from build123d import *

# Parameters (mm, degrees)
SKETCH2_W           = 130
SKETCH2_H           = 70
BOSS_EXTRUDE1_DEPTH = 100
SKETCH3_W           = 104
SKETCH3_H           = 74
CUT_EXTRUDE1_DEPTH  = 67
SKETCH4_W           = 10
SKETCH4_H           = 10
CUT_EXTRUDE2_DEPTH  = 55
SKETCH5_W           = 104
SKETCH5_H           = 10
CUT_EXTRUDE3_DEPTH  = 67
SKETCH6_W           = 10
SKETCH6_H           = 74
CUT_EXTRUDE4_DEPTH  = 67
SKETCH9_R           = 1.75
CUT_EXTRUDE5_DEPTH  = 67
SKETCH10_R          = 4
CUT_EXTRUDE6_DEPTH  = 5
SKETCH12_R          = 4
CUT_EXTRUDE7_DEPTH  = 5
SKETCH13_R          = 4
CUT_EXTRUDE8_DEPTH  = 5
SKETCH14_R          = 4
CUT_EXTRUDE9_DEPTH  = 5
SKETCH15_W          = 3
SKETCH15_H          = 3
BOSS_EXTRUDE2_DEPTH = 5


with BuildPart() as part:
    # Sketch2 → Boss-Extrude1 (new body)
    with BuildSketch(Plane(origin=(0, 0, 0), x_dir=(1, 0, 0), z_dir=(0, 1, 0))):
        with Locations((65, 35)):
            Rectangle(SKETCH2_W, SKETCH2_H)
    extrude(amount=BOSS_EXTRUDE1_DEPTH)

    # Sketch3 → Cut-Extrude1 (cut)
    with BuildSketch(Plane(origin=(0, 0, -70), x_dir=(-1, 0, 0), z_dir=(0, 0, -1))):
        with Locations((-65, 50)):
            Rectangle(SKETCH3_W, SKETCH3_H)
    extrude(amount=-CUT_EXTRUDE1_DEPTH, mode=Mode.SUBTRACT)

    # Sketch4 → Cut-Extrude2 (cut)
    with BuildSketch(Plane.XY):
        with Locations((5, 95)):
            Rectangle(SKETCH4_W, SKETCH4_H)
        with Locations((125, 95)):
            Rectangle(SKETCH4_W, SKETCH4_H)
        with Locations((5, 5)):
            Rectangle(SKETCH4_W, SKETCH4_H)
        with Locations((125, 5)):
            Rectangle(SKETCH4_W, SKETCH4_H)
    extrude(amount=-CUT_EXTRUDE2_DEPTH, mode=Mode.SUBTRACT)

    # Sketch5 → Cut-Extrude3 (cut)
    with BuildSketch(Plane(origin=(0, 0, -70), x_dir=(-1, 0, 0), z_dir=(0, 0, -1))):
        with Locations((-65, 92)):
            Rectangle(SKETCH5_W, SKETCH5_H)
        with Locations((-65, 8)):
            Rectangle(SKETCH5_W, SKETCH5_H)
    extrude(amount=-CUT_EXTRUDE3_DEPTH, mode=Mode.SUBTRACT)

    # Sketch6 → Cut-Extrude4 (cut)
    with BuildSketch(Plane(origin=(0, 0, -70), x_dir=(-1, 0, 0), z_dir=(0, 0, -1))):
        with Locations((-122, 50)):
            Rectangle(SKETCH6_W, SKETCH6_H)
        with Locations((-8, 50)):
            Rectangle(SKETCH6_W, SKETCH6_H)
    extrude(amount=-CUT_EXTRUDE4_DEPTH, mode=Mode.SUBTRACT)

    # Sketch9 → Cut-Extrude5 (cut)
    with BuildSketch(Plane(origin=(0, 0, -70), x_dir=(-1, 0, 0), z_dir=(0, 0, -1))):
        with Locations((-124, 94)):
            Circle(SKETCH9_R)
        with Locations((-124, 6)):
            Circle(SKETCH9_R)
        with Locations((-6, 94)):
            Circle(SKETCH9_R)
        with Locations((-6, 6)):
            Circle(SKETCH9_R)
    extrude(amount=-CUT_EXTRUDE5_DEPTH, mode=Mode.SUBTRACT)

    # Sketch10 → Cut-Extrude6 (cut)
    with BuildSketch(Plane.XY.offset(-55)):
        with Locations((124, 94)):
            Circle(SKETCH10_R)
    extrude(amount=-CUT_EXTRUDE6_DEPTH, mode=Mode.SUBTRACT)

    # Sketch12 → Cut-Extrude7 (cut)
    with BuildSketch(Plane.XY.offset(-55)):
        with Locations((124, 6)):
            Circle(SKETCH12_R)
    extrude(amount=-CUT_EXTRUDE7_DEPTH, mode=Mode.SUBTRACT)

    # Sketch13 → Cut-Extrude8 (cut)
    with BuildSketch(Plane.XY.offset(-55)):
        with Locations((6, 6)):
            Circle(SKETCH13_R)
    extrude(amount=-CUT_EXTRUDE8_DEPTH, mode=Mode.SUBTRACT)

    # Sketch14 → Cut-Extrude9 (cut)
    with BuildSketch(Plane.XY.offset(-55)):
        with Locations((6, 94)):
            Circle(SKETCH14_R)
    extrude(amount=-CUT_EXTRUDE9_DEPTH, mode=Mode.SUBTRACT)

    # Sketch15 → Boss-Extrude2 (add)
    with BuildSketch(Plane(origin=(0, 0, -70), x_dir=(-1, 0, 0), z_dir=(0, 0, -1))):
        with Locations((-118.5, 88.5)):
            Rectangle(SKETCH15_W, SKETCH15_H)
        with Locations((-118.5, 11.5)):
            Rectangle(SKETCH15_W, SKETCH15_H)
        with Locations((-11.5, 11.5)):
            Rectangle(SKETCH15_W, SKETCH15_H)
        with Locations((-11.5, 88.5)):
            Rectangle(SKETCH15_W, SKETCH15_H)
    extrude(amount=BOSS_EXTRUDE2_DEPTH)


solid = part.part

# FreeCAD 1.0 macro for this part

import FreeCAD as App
import Part
import Sketcher

V = App.Vector
Q = App.Units.Quantity

doc = App.newDocument("Part")
body = doc.addObject("PartDesign::Body", "Body")

sketch1 = doc.addObject("Sketcher::SketchObject", "Sketch")
body.addObject(sketch1)
sketch1.AttachmentSupport = (doc.XZ_Plane, [""])
sketch1.MapMode = "FlatFace"
sketch1.addGeometry(Part.LineSegment(V(0, -70, 0), V(0, 0, 0)), False)
sketch1.addGeometry(Part.LineSegment(V(0, 0, 0), V(130, 0, 0)), False)
sketch1.addGeometry(Part.LineSegment(V(130, 0, 0), V(130, -70, 0)), False)
sketch1.addGeometry(Part.LineSegment(V(130, -70, 0), V(0, -70, 0)), False)
sketch1.addConstraint(Sketcher.Constraint("Coincident", 0, 2, 1, 1))
sketch1.addConstraint(Sketcher.Constraint("Coincident", 1, 2, 2, 1))
sketch1.addConstraint(Sketcher.Constraint("Coincident", 2, 2, 3, 1))
sketch1.addConstraint(Sketcher.Constraint("Coincident", 3, 2, 0, 1))
sketch1.addConstraint(Sketcher.Constraint("Vertical", 0))
sketch1.addConstraint(Sketcher.Constraint("Horizontal", 1))
sketch1.addConstraint(Sketcher.Constraint("Vertical", 2))
sketch1.addConstraint(Sketcher.Constraint("Horizontal", 3))
sketch1.addConstraint(Sketcher.Constraint("Coincident", 0, 2, -1, 1))
sketch1.addConstraint(Sketcher.Constraint("DistanceX", 1, 1, 1, 2, Q("130 mm")))
sketch1.addConstraint(Sketcher.Constraint("DistanceY", 0, 1, 0, 2, Q("70 mm")))
pad1 = doc.addObject("PartDesign::Pad", "Pad")
body.addObject(pad1)
pad1.Profile = sketch1
pad1.Length = 100
pad1.Reversed = True

sketch2 = doc.addObject("Sketcher::SketchObject", "Sketch001")
body.addObject(sketch2)
sketch2.AttachmentSupport = (doc.XY_Plane, [""])
sketch2.MapMode = "FlatFace"
sketch2.AttachmentOffset = App.Placement(V(0, 0, -70), App.Rotation())
sketch2.addGeometry(Part.LineSegment(V(117, 87, 0), V(117, 13, 0)), False)
sketch2.addGeometry(Part.LineSegment(V(117, 13, 0), V(13, 13, 0)), False)
sketch2.addGeometry(Part.LineSegment(V(13, 13, 0), V(13, 87, 0)), False)
sketch2.addGeometry(Part.LineSegment(V(13, 87, 0), V(117, 87, 0)), False)
sketch2.addConstraint(Sketcher.Constraint("Coincident", 0, 2, 1, 1))
sketch2.addConstraint(Sketcher.Constraint("Coincident", 1, 2, 2, 1))
sketch2.addConstraint(Sketcher.Constraint("Coincident", 2, 2, 3, 1))
sketch2.addConstraint(Sketcher.Constraint("Coincident", 3, 2, 0, 1))
sketch2.addConstraint(Sketcher.Constraint("Vertical", 0))
sketch2.addConstraint(Sketcher.Constraint("Horizontal", 1))
sketch2.addConstraint(Sketcher.Constraint("Vertical", 2))
sketch2.addConstraint(Sketcher.Constraint("Horizontal", 3))
sketch2.addConstraint(Sketcher.Constraint("DistanceX", 1, 2, 1, 1, Q("104 mm")))
sketch2.addConstraint(Sketcher.Constraint("DistanceY", 0, 2, 0, 1, Q("74 mm")))
sketch2.addConstraint(Sketcher.Constraint("DistanceX", -1, 1, 0, 2, Q("117 mm")))
sketch2.addConstraint(Sketcher.Constraint("DistanceY", -1, 1, 0, 2, Q("13 mm")))
pocket1 = doc.addObject("PartDesign::Pocket", "Pocket")
body.addObject(pocket1)
pocket1.Profile = sketch2
pocket1.Length = 67
pocket1.Reversed = True

sketch3 = doc.addObject("Sketcher::SketchObject", "Sketch002")
body.addObject(sketch3)
sketch3.AttachmentSupport = (doc.XY_Plane, [""])
sketch3.MapMode = "FlatFace"
sketch3.addGeometry(Part.LineSegment(V(0, 100, 0), V(0, 90, 0)), False)
sketch3.addGeometry(Part.LineSegment(V(0, 90, 0), V(10, 90, 0)), False)
sketch3.addGeometry(Part.LineSegment(V(10, 90, 0), V(10, 100, 0)), False)
sketch3.addGeometry(Part.LineSegment(V(10, 100, 0), V(0, 100, 0)), False)
sketch3.addGeometry(Part.LineSegment(V(120, 100, 0), V(120, 90, 0)), False)
sketch3.addGeometry(Part.LineSegment(V(120, 90, 0), V(130, 90, 0)), False)
sketch3.addGeometry(Part.LineSegment(V(130, 90, 0), V(130, 100, 0)), False)
sketch3.addGeometry(Part.LineSegment(V(130, 100, 0), V(120, 100, 0)), False)
sketch3.addGeometry(Part.LineSegment(V(0, 10, 0), V(0, 0, 0)), False)
sketch3.addGeometry(Part.LineSegment(V(0, 0, 0), V(10, 0, 0)), False)
sketch3.addGeometry(Part.LineSegment(V(10, 0, 0), V(10, 10, 0)), False)
sketch3.addGeometry(Part.LineSegment(V(10, 10, 0), V(0, 10, 0)), False)
sketch3.addGeometry(Part.LineSegment(V(120, 10, 0), V(120, 0, 0)), False)
sketch3.addGeometry(Part.LineSegment(V(120, 0, 0), V(130, 0, 0)), False)
sketch3.addGeometry(Part.LineSegment(V(130, 0, 0), V(130, 10, 0)), False)
sketch3.addGeometry(Part.LineSegment(V(130, 10, 0), V(120, 10, 0)), False)
sketch3.addConstraint(Sketcher.Constraint("Coincident", 0, 2, 1, 1))
sketch3.addConstraint(Sketcher.Constraint("Coincident", 1, 2, 2, 1))
sketch3.addConstraint(Sketcher.Constraint("Coincident", 2, 2, 3, 1))
sketch3.addConstraint(Sketcher.Constraint("Coincident", 3, 2, 0, 1))
sketch3.addConstraint(Sketcher.Constraint("Coincident", 4, 2, 5, 1))
sketch3.addConstraint(Sketcher.Constraint("Coincident", 5, 2, 6, 1))
sketch3.addConstraint(Sketcher.Constraint("Coincident", 6, 2, 7, 1))
sketch3.addConstraint(Sketcher.Constraint("Coincident", 7, 2, 4, 1))
sketch3.addConstraint(Sketcher.Constraint("Coincident", 8, 2, 9, 1))
sketch3.addConstraint(Sketcher.Constraint("Coincident", 9, 2, 10, 1))
sketch3.addConstraint(Sketcher.Constraint("Coincident", 10, 2, 11, 1))
sketch3.addConstraint(Sketcher.Constraint("Coincident", 11, 2, 8, 1))
sketch3.addConstraint(Sketcher.Constraint("Coincident", 12, 2, 13, 1))
sketch3.addConstraint(Sketcher.Constraint("Coincident", 13, 2, 14, 1))
sketch3.addConstraint(Sketcher.Constraint("Coincident", 14, 2, 15, 1))
sketch3.addConstraint(Sketcher.Constraint("Coincident", 15, 2, 12, 1))
sketch3.addConstraint(Sketcher.Constraint("Vertical", 0))
sketch3.addConstraint(Sketcher.Constraint("Horizontal", 1))
sketch3.addConstraint(Sketcher.Constraint("Vertical", 2))
sketch3.addConstraint(Sketcher.Constraint("Horizontal", 3))
sketch3.addConstraint(Sketcher.Constraint("Vertical", 4))
sketch3.addConstraint(Sketcher.Constraint("Horizontal", 5))
sketch3.addConstraint(Sketcher.Constraint("Vertical", 6))
sketch3.addConstraint(Sketcher.Constraint("Horizontal", 7))
sketch3.addConstraint(Sketcher.Constraint("Vertical", 8))
sketch3.addConstraint(Sketcher.Constraint("Horizontal", 9))
sketch3.addConstraint(Sketcher.Constraint("Vertical", 10))
sketch3.addConstraint(Sketcher.Constraint("Horizontal", 11))
sketch3.addConstraint(Sketcher.Constraint("Vertical", 12))
sketch3.addConstraint(Sketcher.Constraint("Horizontal", 13))
sketch3.addConstraint(Sketcher.Constraint("Vertical", 14))
sketch3.addConstraint(Sketcher.Constraint("Horizontal", 15))
sketch3.addConstraint(Sketcher.Constraint("Coincident", 8, 2, -1, 1))
sketch3.addConstraint(Sketcher.Constraint("PointOnObject", 0, 2, -2))
sketch3.addConstraint(Sketcher.Constraint("PointOnObject", 12, 2, -1))
sketch3.addConstraint(Sketcher.Constraint("Horizontal", 1, 2, 4, 2))
sketch3.addConstraint(Sketcher.Constraint("Horizontal", 3, 2, 6, 2))
sketch3.addConstraint(Sketcher.Constraint("Horizontal", 11, 2, 14, 2))
sketch3.addConstraint(Sketcher.Constraint("Vertical", 2, 2, 9, 2))
sketch3.addConstraint(Sketcher.Constraint("Vertical", 7, 2, 12, 2))
sketch3.addConstraint(Sketcher.Constraint("Vertical", 6, 2, 13, 2))
sketch3.addConstraint(Sketcher.Constraint("Equal", 3, 5))
sketch3.addConstraint(Sketcher.Constraint("Equal", 15, 0))
sketch3.addConstraint(Sketcher.Constraint("Equal", 6, 8))
sketch3.addConstraint(Sketcher.Constraint("DistanceX", 1, 1, 1, 2, Q("10 mm")))
sketch3.addConstraint(Sketcher.Constraint("DistanceY", -1, 1, 0, 2, Q("90 mm")))
sketch3.addConstraint(Sketcher.Constraint("DistanceX", -1, 1, 4, 2, Q("120 mm")))
pocket2 = doc.addObject("PartDesign::Pocket", "Pocket001")
body.addObject(pocket2)
pocket2.Profile = sketch3
pocket2.Length = 55

sketch4 = doc.addObject("Sketcher::SketchObject", "Sketch003")
body.addObject(sketch4)
sketch4.AttachmentSupport = (doc.XY_Plane, [""])
sketch4.MapMode = "FlatFace"
sketch4.AttachmentOffset = App.Placement(V(0, 0, -70), App.Rotation())
sketch4.addGeometry(Part.LineSegment(V(117, 97, 0), V(117, 87, 0)), False)
sketch4.addGeometry(Part.LineSegment(V(117, 87, 0), V(13, 87, 0)), False)
sketch4.addGeometry(Part.LineSegment(V(13, 87, 0), V(13, 97, 0)), False)
sketch4.addGeometry(Part.LineSegment(V(13, 97, 0), V(117, 97, 0)), False)
sketch4.addGeometry(Part.LineSegment(V(117, 13, 0), V(117, 3, 0)), False)
sketch4.addGeometry(Part.LineSegment(V(117, 3, 0), V(13, 3, 0)), False)
sketch4.addGeometry(Part.LineSegment(V(13, 3, 0), V(13, 13, 0)), False)
sketch4.addGeometry(Part.LineSegment(V(13, 13, 0), V(117, 13, 0)), False)
sketch4.addConstraint(Sketcher.Constraint("Coincident", 0, 2, 1, 1))
sketch4.addConstraint(Sketcher.Constraint("Coincident", 1, 2, 2, 1))
sketch4.addConstraint(Sketcher.Constraint("Coincident", 2, 2, 3, 1))
sketch4.addConstraint(Sketcher.Constraint("Coincident", 3, 2, 0, 1))
sketch4.addConstraint(Sketcher.Constraint("Coincident", 4, 2, 5, 1))
sketch4.addConstraint(Sketcher.Constraint("Coincident", 5, 2, 6, 1))
sketch4.addConstraint(Sketcher.Constraint("Coincident", 6, 2, 7, 1))
sketch4.addConstraint(Sketcher.Constraint("Coincident", 7, 2, 4, 1))
sketch4.addConstraint(Sketcher.Constraint("Vertical", 0))
sketch4.addConstraint(Sketcher.Constraint("Horizontal", 1))
sketch4.addConstraint(Sketcher.Constraint("Vertical", 2))
sketch4.addConstraint(Sketcher.Constraint("Horizontal", 3))
sketch4.addConstraint(Sketcher.Constraint("Vertical", 4))
sketch4.addConstraint(Sketcher.Constraint("Horizontal", 5))
sketch4.addConstraint(Sketcher.Constraint("Vertical", 6))
sketch4.addConstraint(Sketcher.Constraint("Horizontal", 7))
sketch4.addConstraint(Sketcher.Constraint("Vertical", 3, 2, 4, 2))
sketch4.addConstraint(Sketcher.Constraint("Vertical", 2, 2, 5, 2))
sketch4.addConstraint(Sketcher.Constraint("Equal", 2, 4))
sketch4.addConstraint(Sketcher.Constraint("DistanceX", 1, 2, 1, 1, Q("104 mm")))
sketch4.addConstraint(Sketcher.Constraint("DistanceY", 0, 2, 0, 1, Q("10 mm")))
sketch4.addConstraint(Sketcher.Constraint("DistanceX", -1, 1, 0, 2, Q("117 mm")))
sketch4.addConstraint(Sketcher.Constraint("DistanceY", -1, 1, 0, 2, Q("87 mm")))
sketch4.addConstraint(Sketcher.Constraint("DistanceY", -1, 1, 4, 2, Q("3 mm")))
pocket3 = doc.addObject("PartDesign::Pocket", "Pocket002")
body.addObject(pocket3)
pocket3.Profile = sketch4
pocket3.Length = 67
pocket3.Reversed = True

sketch5 = doc.addObject("Sketcher::SketchObject", "Sketch004")
body.addObject(sketch5)
sketch5.AttachmentSupport = (doc.XY_Plane, [""])
sketch5.MapMode = "FlatFace"
sketch5.AttachmentOffset = App.Placement(V(0, 0, -70), App.Rotation())
sketch5.addGeometry(Part.LineSegment(V(127, 87, 0), V(127, 13, 0)), False)
sketch5.addGeometry(Part.LineSegment(V(127, 13, 0), V(117, 13, 0)), False)
sketch5.addGeometry(Part.LineSegment(V(117, 13, 0), V(117, 87, 0)), False)
sketch5.addGeometry(Part.LineSegment(V(117, 87, 0), V(127, 87, 0)), False)
sketch5.addGeometry(Part.LineSegment(V(13, 87, 0), V(13, 13, 0)), False)
sketch5.addGeometry(Part.LineSegment(V(13, 13, 0), V(3, 13, 0)), False)
sketch5.addGeometry(Part.LineSegment(V(3, 13, 0), V(3, 87, 0)), False)
sketch5.addGeometry(Part.LineSegment(V(3, 87, 0), V(13, 87, 0)), False)
sketch5.addConstraint(Sketcher.Constraint("Coincident", 0, 2, 1, 1))
sketch5.addConstraint(Sketcher.Constraint("Coincident", 1, 2, 2, 1))
sketch5.addConstraint(Sketcher.Constraint("Coincident", 2, 2, 3, 1))
sketch5.addConstraint(Sketcher.Constraint("Coincident", 3, 2, 0, 1))
sketch5.addConstraint(Sketcher.Constraint("Coincident", 4, 2, 5, 1))
sketch5.addConstraint(Sketcher.Constraint("Coincident", 5, 2, 6, 1))
sketch5.addConstraint(Sketcher.Constraint("Coincident", 6, 2, 7, 1))
sketch5.addConstraint(Sketcher.Constraint("Coincident", 7, 2, 4, 1))
sketch5.addConstraint(Sketcher.Constraint("Vertical", 0))
sketch5.addConstraint(Sketcher.Constraint("Horizontal", 1))
sketch5.addConstraint(Sketcher.Constraint("Vertical", 2))
sketch5.addConstraint(Sketcher.Constraint("Horizontal", 3))
sketch5.addConstraint(Sketcher.Constraint("Vertical", 4))
sketch5.addConstraint(Sketcher.Constraint("Horizontal", 5))
sketch5.addConstraint(Sketcher.Constraint("Vertical", 6))
sketch5.addConstraint(Sketcher.Constraint("Horizontal", 7))
sketch5.addConstraint(Sketcher.Constraint("Horizontal", 1, 2, 4, 2))
sketch5.addConstraint(Sketcher.Constraint("Horizontal", 3, 2, 6, 2))
sketch5.addConstraint(Sketcher.Constraint("Equal", 3, 5))
sketch5.addConstraint(Sketcher.Constraint("DistanceX", 1, 2, 1, 1, Q("10 mm")))
sketch5.addConstraint(Sketcher.Constraint("DistanceY", 0, 2, 0, 1, Q("74 mm")))
sketch5.addConstraint(Sketcher.Constraint("DistanceX", -1, 1, 0, 2, Q("127 mm")))
sketch5.addConstraint(Sketcher.Constraint("DistanceY", -1, 1, 0, 2, Q("13 mm")))
sketch5.addConstraint(Sketcher.Constraint("DistanceX", -1, 1, 4, 2, Q("13 mm")))
pocket4 = doc.addObject("PartDesign::Pocket", "Pocket003")
body.addObject(pocket4)
pocket4.Profile = sketch5
pocket4.Length = 67
pocket4.Reversed = True

sketch6 = doc.addObject("Sketcher::SketchObject", "Sketch005")
body.addObject(sketch6)
sketch6.AttachmentSupport = (doc.XY_Plane, [""])
sketch6.MapMode = "FlatFace"
sketch6.AttachmentOffset = App.Placement(V(0, 0, -70), App.Rotation())
sketch6.addGeometry(Part.Circle(V(124, 94, 0), V(0, 0, 1), 1.75), False)
sketch6.addGeometry(Part.Circle(V(124, 6, 0), V(0, 0, 1), 1.75), False)
sketch6.addGeometry(Part.Circle(V(6, 94, 0), V(0, 0, 1), 1.75), False)
sketch6.addGeometry(Part.Circle(V(6, 6, 0), V(0, 0, 1), 1.75), False)
sketch6.addConstraint(Sketcher.Constraint("Equal", 0, 1))
sketch6.addConstraint(Sketcher.Constraint("Equal", 1, 2))
sketch6.addConstraint(Sketcher.Constraint("Equal", 2, 3))
sketch6.addConstraint(Sketcher.Constraint("Horizontal", 0, 3, 2, 3))
sketch6.addConstraint(Sketcher.Constraint("Horizontal", 1, 3, 3, 3))
sketch6.addConstraint(Sketcher.Constraint("Vertical", 0, 3, 1, 3))
sketch6.addConstraint(Sketcher.Constraint("Vertical", 2, 3, 3, 3))
sketch6.addConstraint(Sketcher.Constraint("Diameter", 0, Q("3.5 mm")))
sketch6.addConstraint(Sketcher.Constraint("DistanceX", -1, 1, 0, 3, Q("124 mm")))
sketch6.addConstraint(Sketcher.Constraint("DistanceY", -1, 1, 0, 3, Q("94 mm")))
sketch6.addConstraint(Sketcher.Constraint("DistanceY", -1, 1, 1, 3, Q("6 mm")))
sketch6.addConstraint(Sketcher.Constraint("DistanceX", -1, 1, 2, 3, Q("6 mm")))
pocket5 = doc.addObject("PartDesign::Pocket", "Pocket004")
body.addObject(pocket5)
pocket5.Profile = sketch6
pocket5.Length = 67
pocket5.Reversed = True

sketch7 = doc.addObject("Sketcher::SketchObject", "Sketch006")
body.addObject(sketch7)
sketch7.AttachmentSupport = (doc.XY_Plane, [""])
sketch7.MapMode = "FlatFace"
sketch7.AttachmentOffset = App.Placement(V(0, 0, -55), App.Rotation())
sketch7.addGeometry(Part.Circle(V(124, 94, 0), V(0, 0, 1), 4), False)
sketch7.addConstraint(Sketcher.Constraint("Diameter", 0, Q("8 mm")))
sketch7.addConstraint(Sketcher.Constraint("DistanceX", -1, 1, 0, 3, Q("124 mm")))
sketch7.addConstraint(Sketcher.Constraint("DistanceY", -1, 1, 0, 3, Q("94 mm")))
pocket6 = doc.addObject("PartDesign::Pocket", "Pocket005")
body.addObject(pocket6)
pocket6.Profile = sketch7
pocket6.Length = 5

sketch8 = doc.addObject("Sketcher::SketchObject", "Sketch007")
body.addObject(sketch8)
sketch8.AttachmentSupport = (doc.XY_Plane, [""])
sketch8.MapMode = "FlatFace"
sketch8.AttachmentOffset = App.Placement(V(0, 0, -55), App.Rotation())
sketch8.addGeometry(Part.Circle(V(124, 6, 0), V(0, 0, 1), 4), False)
sketch8.addConstraint(Sketcher.Constraint("Diameter", 0, Q("8 mm")))
sketch8.addConstraint(Sketcher.Constraint("DistanceX", -1, 1, 0, 3, Q("124 mm")))
sketch8.addConstraint(Sketcher.Constraint("DistanceY", -1, 1, 0, 3, Q("6 mm")))
pocket7 = doc.addObject("PartDesign::Pocket", "Pocket006")
body.addObject(pocket7)
pocket7.Profile = sketch8
pocket7.Length = 5

sketch9 = doc.addObject("Sketcher::SketchObject", "Sketch008")
body.addObject(sketch9)
sketch9.AttachmentSupport = (doc.XY_Plane, [""])
sketch9.MapMode = "FlatFace"
sketch9.AttachmentOffset = App.Placement(V(0, 0, -55), App.Rotation())
sketch9.addGeometry(Part.Circle(V(6, 6, 0), V(0, 0, 1), 4), False)
sketch9.addConstraint(Sketcher.Constraint("Diameter", 0, Q("8 mm")))
sketch9.addConstraint(Sketcher.Constraint("DistanceX", -1, 1, 0, 3, Q("6 mm")))
sketch9.addConstraint(Sketcher.Constraint("DistanceY", -1, 1, 0, 3, Q("6 mm")))
pocket8 = doc.addObject("PartDesign::Pocket", "Pocket007")
body.addObject(pocket8)
pocket8.Profile = sketch9
pocket8.Length = 5

sketch10 = doc.addObject("Sketcher::SketchObject", "Sketch009")
body.addObject(sketch10)
sketch10.AttachmentSupport = (doc.XY_Plane, [""])
sketch10.MapMode = "FlatFace"
sketch10.AttachmentOffset = App.Placement(V(0, 0, -55), App.Rotation())
sketch10.addGeometry(Part.Circle(V(6, 94, 0), V(0, 0, 1), 4), False)
sketch10.addConstraint(Sketcher.Constraint("Diameter", 0, Q("8 mm")))
sketch10.addConstraint(Sketcher.Constraint("DistanceX", -1, 1, 0, 3, Q("6 mm")))
sketch10.addConstraint(Sketcher.Constraint("DistanceY", -1, 1, 0, 3, Q("94 mm")))
pocket9 = doc.addObject("PartDesign::Pocket", "Pocket008")
body.addObject(pocket9)
pocket9.Profile = sketch10
pocket9.Length = 5

sketch11 = doc.addObject("Sketcher::SketchObject", "Sketch010")
body.addObject(sketch11)
sketch11.AttachmentSupport = (doc.XY_Plane, [""])
sketch11.MapMode = "FlatFace"
sketch11.AttachmentOffset = App.Placement(V(0, 0, -70), App.Rotation())
sketch11.addGeometry(Part.LineSegment(V(120, 90, 0), V(120, 87, 0)), False)
sketch11.addGeometry(Part.LineSegment(V(120, 87, 0), V(117, 87, 0)), False)
sketch11.addGeometry(Part.LineSegment(V(117, 87, 0), V(117, 90, 0)), False)
sketch11.addGeometry(Part.LineSegment(V(117, 90, 0), V(120, 90, 0)), False)
sketch11.addGeometry(Part.LineSegment(V(120, 13, 0), V(120, 10, 0)), False)
sketch11.addGeometry(Part.LineSegment(V(120, 10, 0), V(117, 10, 0)), False)
sketch11.addGeometry(Part.LineSegment(V(117, 10, 0), V(117, 13, 0)), False)
sketch11.addGeometry(Part.LineSegment(V(117, 13, 0), V(120, 13, 0)), False)
sketch11.addGeometry(Part.LineSegment(V(13, 13, 0), V(13, 10, 0)), False)
sketch11.addGeometry(Part.LineSegment(V(13, 10, 0), V(10, 10, 0)), False)
sketch11.addGeometry(Part.LineSegment(V(10, 10, 0), V(10, 13, 0)), False)
sketch11.addGeometry(Part.LineSegment(V(10, 13, 0), V(13, 13, 0)), False)
sketch11.addGeometry(Part.LineSegment(V(13, 90, 0), V(13, 87, 0)), False)
sketch11.addGeometry(Part.LineSegment(V(13, 87, 0), V(10, 87, 0)), False)
sketch11.addGeometry(Part.LineSegment(V(10, 87, 0), V(10, 90, 0)), False)
sketch11.addGeometry(Part.LineSegment(V(10, 90, 0), V(13, 90, 0)), False)
sketch11.addConstraint(Sketcher.Constraint("Coincident", 0, 2, 1, 1))
sketch11.addConstraint(Sketcher.Constraint("Coincident", 1, 2, 2, 1))
sketch11.addConstraint(Sketcher.Constraint("Coincident", 2, 2, 3, 1))
sketch11.addConstraint(Sketcher.Constraint("Coincident", 3, 2, 0, 1))
sketch11.addConstraint(Sketcher.Constraint("Coincident", 4, 2, 5, 1))
sketch11.addConstraint(Sketcher.Constraint("Coincident", 5, 2, 6, 1))
sketch11.addConstraint(Sketcher.Constraint("Coincident", 6, 2, 7, 1))
sketch11.addConstraint(Sketcher.Constraint("Coincident", 7, 2, 4, 1))
sketch11.addConstraint(Sketcher.Constraint("Coincident", 8, 2, 9, 1))
sketch11.addConstraint(Sketcher.Constraint("Coincident", 9, 2, 10, 1))
sketch11.addConstraint(Sketcher.Constraint("Coincident", 10, 2, 11, 1))
sketch11.addConstraint(Sketcher.Constraint("Coincident", 11, 2, 8, 1))
sketch11.addConstraint(Sketcher.Constraint("Coincident", 12, 2, 13, 1))
sketch11.addConstraint(Sketcher.Constraint("Coincident", 13, 2, 14, 1))
sketch11.addConstraint(Sketcher.Constraint("Coincident", 14, 2, 15, 1))
sketch11.addConstraint(Sketcher.Constraint("Coincident", 15, 2, 12, 1))
sketch11.addConstraint(Sketcher.Constraint("Vertical", 0))
sketch11.addConstraint(Sketcher.Constraint("Horizontal", 1))
sketch11.addConstraint(Sketcher.Constraint("Vertical", 2))
sketch11.addConstraint(Sketcher.Constraint("Horizontal", 3))
sketch11.addConstraint(Sketcher.Constraint("Vertical", 4))
sketch11.addConstraint(Sketcher.Constraint("Horizontal", 5))
sketch11.addConstraint(Sketcher.Constraint("Vertical", 6))
sketch11.addConstraint(Sketcher.Constraint("Horizontal", 7))
sketch11.addConstraint(Sketcher.Constraint("Vertical", 8))
sketch11.addConstraint(Sketcher.Constraint("Horizontal", 9))
sketch11.addConstraint(Sketcher.Constraint("Vertical", 10))
sketch11.addConstraint(Sketcher.Constraint("Horizontal", 11))
sketch11.addConstraint(Sketcher.Constraint("Vertical", 12))
sketch11.addConstraint(Sketcher.Constraint("Horizontal", 13))
sketch11.addConstraint(Sketcher.Constraint("Vertical", 14))
sketch11.addConstraint(Sketcher.Constraint("Horizontal", 15))
sketch11.addConstraint(Sketcher.Constraint("Horizontal", 5, 2, 8, 2))
sketch11.addConstraint(Sketcher.Constraint("Horizontal", 7, 2, 10, 2))
sketch11.addConstraint(Sketcher.Constraint("Horizontal", 1, 2, 12, 2))
sketch11.addConstraint(Sketcher.Constraint("Horizontal", 3, 2, 14, 2))
sketch11.addConstraint(Sketcher.Constraint("Vertical", 3, 2, 4, 2))
sketch11.addConstraint(Sketcher.Constraint("Vertical", 2, 2, 5, 2))
sketch11.addConstraint(Sketcher.Constraint("Vertical", 11, 2, 12, 2))
sketch11.addConstraint(Sketcher.Constraint("Vertical", 10, 2, 13, 2))
sketch11.addConstraint(Sketcher.Constraint("Equal", 7, 9))
sketch11.addConstraint(Sketcher.Constraint("Equal", 15, 0))
sketch11.addConstraint(Sketcher.Constraint("Equal", 2, 4))
sketch11.addConstraint(Sketcher.Constraint("DistanceX", 1, 2, 1, 1, Q("3 mm")))
sketch11.addConstraint(Sketcher.Constraint("DistanceX", -1, 1, 0, 2, Q("120 mm")))
sketch11.addConstraint(Sketcher.Constraint("DistanceY", -1, 1, 0, 2, Q("87 mm")))
sketch11.addConstraint(Sketcher.Constraint("DistanceY", -1, 1, 4, 2, Q("10 mm")))
sketch11.addConstraint(Sketcher.Constraint("DistanceX", -1, 1, 8, 2, Q("13 mm")))
pad2 = doc.addObject("PartDesign::Pad", "Pad001")
body.addObject(pad2)
pad2.Profile = sketch11
pad2.Length = 5
pad2.Reversed = True

doc.recompute()
